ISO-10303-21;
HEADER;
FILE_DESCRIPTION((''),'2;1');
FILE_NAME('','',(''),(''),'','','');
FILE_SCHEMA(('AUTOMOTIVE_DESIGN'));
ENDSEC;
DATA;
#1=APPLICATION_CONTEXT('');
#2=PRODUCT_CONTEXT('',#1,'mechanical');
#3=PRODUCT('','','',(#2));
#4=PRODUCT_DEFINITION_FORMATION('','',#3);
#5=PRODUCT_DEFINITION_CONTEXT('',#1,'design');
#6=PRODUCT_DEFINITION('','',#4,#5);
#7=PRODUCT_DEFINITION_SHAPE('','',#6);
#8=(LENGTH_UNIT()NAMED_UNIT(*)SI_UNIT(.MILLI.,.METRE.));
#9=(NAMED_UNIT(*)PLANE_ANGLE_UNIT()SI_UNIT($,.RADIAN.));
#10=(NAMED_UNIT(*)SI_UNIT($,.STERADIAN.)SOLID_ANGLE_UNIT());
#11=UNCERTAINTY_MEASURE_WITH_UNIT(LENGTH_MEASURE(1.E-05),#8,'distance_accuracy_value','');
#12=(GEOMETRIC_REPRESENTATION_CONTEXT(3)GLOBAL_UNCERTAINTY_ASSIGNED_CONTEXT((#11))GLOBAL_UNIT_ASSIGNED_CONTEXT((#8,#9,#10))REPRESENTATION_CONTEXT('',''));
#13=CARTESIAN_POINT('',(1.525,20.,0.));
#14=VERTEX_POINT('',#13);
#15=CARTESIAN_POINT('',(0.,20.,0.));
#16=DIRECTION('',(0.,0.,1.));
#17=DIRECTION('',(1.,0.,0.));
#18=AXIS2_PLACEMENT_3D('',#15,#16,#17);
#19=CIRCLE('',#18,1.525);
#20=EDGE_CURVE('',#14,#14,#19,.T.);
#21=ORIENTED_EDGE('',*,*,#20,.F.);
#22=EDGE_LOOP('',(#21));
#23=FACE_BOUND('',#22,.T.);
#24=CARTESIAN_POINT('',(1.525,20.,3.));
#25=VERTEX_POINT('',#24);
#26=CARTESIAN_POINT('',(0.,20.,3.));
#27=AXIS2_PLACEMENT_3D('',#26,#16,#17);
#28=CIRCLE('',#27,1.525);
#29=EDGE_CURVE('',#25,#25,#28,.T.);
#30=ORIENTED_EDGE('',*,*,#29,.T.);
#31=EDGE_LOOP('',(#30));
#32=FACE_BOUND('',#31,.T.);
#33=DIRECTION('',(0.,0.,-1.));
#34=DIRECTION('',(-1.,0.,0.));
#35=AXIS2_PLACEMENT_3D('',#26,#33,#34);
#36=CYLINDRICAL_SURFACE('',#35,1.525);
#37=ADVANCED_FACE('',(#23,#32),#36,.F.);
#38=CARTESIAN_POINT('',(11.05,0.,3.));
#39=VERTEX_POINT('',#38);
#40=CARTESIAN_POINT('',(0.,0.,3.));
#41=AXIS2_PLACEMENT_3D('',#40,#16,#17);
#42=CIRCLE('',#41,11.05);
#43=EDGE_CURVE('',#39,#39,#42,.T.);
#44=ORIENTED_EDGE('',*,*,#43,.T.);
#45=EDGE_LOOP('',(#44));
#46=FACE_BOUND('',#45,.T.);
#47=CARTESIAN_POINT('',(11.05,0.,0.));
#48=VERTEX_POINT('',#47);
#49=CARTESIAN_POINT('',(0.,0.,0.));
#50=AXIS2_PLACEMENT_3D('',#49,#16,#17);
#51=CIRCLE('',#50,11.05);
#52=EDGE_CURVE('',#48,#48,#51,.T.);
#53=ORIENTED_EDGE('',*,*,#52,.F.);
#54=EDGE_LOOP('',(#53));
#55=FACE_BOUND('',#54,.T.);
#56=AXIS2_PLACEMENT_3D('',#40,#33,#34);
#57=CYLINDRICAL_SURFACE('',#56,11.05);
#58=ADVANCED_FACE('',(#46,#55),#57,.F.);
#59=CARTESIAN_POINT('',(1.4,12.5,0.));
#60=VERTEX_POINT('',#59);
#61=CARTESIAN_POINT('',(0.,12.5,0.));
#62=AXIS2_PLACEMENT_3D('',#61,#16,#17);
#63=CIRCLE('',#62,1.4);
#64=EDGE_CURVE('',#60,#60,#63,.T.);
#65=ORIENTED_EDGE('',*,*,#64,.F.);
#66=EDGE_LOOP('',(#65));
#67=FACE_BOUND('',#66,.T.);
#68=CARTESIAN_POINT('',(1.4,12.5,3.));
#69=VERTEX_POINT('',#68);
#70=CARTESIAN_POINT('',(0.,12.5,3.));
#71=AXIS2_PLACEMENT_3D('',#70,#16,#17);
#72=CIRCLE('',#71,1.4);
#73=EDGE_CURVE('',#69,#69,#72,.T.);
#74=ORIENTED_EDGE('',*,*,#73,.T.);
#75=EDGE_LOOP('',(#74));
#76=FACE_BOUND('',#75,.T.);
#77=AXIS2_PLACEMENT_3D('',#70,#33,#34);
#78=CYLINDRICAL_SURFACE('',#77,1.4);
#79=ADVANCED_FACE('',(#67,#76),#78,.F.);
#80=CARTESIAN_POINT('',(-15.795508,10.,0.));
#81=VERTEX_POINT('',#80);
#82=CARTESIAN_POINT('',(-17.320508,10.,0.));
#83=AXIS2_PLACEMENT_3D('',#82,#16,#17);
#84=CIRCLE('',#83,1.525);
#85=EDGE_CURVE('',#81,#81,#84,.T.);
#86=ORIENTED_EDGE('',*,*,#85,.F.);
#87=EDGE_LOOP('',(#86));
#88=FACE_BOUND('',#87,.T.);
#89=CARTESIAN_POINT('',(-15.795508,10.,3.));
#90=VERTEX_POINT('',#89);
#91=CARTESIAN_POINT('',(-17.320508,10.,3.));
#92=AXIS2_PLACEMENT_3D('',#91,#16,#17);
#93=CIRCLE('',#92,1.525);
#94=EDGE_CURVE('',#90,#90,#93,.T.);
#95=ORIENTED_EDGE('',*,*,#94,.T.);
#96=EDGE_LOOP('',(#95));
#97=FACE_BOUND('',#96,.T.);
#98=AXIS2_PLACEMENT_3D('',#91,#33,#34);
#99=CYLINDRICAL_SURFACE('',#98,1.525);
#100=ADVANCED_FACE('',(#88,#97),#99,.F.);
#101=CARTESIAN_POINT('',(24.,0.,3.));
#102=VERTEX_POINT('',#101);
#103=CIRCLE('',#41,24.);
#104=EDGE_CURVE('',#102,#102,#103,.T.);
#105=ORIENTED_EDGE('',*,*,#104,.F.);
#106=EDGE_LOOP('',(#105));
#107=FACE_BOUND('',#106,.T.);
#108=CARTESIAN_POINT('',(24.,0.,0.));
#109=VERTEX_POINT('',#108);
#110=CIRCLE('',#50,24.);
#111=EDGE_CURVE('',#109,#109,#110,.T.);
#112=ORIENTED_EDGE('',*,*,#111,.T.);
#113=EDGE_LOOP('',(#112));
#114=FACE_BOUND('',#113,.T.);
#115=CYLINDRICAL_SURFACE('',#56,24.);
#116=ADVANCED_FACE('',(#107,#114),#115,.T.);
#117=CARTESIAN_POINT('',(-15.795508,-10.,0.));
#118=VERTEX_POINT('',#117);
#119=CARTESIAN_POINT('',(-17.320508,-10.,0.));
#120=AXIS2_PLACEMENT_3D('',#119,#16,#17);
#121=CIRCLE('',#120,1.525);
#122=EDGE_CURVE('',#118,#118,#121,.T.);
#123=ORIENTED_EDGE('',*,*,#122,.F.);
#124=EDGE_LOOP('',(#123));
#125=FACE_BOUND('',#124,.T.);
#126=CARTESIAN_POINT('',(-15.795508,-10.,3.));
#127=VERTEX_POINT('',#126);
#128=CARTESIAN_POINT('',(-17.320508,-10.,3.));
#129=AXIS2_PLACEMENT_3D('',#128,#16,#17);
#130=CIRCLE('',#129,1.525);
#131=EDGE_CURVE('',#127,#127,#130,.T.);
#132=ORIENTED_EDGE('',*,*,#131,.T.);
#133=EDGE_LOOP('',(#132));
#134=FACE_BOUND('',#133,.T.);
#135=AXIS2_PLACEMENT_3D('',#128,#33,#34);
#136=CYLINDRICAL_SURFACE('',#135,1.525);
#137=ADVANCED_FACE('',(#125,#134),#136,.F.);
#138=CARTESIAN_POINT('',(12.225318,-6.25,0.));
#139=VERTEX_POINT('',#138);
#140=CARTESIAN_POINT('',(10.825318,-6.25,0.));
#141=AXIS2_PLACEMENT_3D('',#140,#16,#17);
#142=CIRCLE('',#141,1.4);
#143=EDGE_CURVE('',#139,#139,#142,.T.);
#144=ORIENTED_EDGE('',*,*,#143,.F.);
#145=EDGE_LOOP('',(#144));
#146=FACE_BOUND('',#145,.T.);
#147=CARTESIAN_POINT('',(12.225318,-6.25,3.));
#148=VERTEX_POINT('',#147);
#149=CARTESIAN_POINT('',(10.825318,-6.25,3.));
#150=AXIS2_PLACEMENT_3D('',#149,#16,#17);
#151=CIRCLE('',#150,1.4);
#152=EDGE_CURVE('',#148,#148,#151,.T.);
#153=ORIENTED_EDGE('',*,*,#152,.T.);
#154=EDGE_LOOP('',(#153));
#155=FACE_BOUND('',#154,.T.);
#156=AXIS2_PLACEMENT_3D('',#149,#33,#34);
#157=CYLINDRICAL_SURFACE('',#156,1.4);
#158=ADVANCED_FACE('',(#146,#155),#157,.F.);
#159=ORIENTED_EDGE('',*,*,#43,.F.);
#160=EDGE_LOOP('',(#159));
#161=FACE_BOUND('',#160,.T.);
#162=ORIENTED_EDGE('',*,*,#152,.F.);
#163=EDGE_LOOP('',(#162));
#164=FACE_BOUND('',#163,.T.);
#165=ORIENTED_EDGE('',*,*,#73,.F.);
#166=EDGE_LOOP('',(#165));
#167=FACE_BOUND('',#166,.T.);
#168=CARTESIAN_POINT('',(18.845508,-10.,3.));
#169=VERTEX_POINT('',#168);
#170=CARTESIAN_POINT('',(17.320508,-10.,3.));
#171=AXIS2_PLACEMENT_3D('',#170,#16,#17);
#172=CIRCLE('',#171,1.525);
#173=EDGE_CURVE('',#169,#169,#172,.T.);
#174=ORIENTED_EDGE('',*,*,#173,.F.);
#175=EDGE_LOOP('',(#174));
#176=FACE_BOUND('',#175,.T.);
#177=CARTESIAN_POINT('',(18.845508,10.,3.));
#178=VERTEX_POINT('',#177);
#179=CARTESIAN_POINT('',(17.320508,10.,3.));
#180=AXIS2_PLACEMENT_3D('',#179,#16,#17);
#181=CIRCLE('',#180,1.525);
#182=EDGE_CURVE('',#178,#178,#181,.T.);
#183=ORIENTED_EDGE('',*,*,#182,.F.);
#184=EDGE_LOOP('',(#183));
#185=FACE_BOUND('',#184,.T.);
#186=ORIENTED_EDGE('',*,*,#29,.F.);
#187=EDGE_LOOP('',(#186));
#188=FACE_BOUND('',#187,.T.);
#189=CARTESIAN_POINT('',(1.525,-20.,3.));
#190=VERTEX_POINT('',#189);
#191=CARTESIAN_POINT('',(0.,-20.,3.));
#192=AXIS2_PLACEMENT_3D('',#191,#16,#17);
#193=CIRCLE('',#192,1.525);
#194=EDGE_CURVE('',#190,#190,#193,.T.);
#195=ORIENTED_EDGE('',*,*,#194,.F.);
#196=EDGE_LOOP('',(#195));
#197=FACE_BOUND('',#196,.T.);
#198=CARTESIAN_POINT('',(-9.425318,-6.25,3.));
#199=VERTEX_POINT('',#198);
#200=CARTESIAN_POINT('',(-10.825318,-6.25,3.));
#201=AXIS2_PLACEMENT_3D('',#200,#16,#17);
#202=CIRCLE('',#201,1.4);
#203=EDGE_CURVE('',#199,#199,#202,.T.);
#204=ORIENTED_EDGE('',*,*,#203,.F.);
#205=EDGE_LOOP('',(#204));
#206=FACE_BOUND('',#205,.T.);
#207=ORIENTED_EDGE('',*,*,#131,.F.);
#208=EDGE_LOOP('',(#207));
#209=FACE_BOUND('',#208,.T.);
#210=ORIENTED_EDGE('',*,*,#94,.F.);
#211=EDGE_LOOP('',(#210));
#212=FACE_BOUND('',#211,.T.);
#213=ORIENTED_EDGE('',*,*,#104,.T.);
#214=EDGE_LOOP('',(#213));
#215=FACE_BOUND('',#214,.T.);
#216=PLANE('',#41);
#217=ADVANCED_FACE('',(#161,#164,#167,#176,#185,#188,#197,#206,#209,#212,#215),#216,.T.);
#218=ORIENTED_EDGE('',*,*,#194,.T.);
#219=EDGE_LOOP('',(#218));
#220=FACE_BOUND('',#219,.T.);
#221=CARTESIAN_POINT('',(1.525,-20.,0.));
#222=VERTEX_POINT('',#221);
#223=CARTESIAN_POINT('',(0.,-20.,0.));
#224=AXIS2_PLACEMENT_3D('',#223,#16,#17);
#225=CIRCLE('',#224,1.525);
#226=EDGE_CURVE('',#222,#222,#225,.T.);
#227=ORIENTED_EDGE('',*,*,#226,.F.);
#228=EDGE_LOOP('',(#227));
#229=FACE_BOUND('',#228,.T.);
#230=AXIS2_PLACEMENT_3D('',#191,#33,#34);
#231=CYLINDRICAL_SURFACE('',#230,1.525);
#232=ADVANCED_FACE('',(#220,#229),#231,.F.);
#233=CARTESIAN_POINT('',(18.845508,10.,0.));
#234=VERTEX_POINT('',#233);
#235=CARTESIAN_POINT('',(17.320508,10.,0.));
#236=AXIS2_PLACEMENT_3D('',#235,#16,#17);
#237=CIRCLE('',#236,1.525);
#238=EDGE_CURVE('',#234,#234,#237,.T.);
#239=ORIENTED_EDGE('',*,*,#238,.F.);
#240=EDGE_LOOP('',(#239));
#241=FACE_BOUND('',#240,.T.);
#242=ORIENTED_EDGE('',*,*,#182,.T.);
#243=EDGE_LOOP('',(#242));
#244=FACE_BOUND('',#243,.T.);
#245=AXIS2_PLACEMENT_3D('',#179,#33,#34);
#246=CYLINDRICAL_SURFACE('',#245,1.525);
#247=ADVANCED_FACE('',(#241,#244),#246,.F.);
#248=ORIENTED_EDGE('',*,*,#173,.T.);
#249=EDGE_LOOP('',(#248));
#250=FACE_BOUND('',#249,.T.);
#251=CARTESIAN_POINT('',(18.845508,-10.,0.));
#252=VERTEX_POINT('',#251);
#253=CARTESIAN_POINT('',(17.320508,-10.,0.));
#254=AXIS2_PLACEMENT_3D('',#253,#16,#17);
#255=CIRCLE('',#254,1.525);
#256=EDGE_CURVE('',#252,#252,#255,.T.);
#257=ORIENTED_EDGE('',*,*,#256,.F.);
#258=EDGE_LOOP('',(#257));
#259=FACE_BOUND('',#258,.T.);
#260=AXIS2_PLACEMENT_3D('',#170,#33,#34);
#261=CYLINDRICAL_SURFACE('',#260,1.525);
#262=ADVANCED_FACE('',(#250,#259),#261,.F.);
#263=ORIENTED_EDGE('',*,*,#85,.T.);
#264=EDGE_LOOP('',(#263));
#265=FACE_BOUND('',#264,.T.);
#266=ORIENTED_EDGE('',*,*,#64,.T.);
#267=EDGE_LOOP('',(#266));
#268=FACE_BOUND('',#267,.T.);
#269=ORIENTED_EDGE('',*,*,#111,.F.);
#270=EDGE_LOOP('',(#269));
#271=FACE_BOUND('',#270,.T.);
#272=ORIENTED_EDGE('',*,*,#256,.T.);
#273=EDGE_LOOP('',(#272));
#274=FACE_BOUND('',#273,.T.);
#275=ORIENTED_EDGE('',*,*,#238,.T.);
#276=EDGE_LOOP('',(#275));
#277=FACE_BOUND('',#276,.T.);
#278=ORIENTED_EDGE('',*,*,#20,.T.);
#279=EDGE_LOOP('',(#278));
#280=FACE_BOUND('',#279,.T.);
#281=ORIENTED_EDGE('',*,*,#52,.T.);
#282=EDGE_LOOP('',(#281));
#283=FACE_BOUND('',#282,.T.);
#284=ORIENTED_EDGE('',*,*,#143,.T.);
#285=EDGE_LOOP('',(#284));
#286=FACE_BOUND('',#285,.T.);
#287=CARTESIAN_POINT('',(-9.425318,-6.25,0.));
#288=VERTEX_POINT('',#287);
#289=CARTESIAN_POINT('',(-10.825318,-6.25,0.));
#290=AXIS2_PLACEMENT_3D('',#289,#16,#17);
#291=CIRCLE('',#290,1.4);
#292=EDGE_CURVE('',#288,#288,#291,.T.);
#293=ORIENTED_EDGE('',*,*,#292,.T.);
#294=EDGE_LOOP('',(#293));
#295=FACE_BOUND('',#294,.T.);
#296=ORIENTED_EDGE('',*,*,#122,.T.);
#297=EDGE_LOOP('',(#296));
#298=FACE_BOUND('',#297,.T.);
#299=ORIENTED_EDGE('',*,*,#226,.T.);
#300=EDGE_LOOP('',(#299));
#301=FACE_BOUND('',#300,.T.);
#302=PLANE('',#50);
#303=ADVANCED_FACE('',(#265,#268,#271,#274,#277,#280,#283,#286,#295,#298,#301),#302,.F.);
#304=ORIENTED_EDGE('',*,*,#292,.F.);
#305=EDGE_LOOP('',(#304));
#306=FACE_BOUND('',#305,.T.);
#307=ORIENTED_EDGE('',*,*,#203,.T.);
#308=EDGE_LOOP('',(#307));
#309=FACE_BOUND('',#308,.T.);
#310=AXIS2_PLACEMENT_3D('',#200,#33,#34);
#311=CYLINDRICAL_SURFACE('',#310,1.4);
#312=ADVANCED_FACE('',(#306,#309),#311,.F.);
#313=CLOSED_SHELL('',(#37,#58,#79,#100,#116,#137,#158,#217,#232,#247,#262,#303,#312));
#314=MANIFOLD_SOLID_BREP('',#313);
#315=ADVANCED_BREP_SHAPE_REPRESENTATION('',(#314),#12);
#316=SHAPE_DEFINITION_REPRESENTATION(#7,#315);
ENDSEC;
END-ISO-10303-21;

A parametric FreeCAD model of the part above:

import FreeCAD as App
import Part
import Sketcher
Q = App.Units.Quantity

doc = App.newDocument("Part")
body = doc.addObject("PartDesign::Body", "Body")

# Sketch on XY plane
sketch1 = doc.addObject("Sketcher::SketchObject", "Sketch")
body.addObject(sketch1)
sketch1.AttachmentSupport = (doc.XY_Plane, [""])
sketch1.MapMode = "FlatFace"
sketch1.addGeometry(Part.Circle(App.Vector(0, 0, 0), App.Vector(0, 0, 1), 24), False)
sketch1.addGeometry(Part.Circle(App.Vector(-17.3, -10, 0), App.Vector(0, 0, 1), 1.5), False)
sketch1.addGeometry(Part.Circle(App.Vector(-10.8, -6.2, 0), App.Vector(0, 0, 1), 1.4), False)
sketch1.addGeometry(Part.Circle(App.Vector(0, -20, 0), App.Vector(0, 0, 1), 1.5), False)
sketch1.addGeometry(Part.Circle(App.Vector(0, 0, 0), App.Vector(0, 0, 1), 11.1), False)
sketch1.addGeometry(Part.Circle(App.Vector(10.8, -6.2, 0), App.Vector(0, 0, 1), 1.4), False)
sketch1.addGeometry(Part.Circle(App.Vector(17.3, -10, 0), App.Vector(0, 0, 1), 1.5), False)
sketch1.addGeometry(Part.Circle(App.Vector(-17.3, 10, 0), App.Vector(0, 0, 1), 1.5), False)
sketch1.addGeometry(Part.Circle(App.Vector(17.3, 10, 0), App.Vector(0, 0, 1), 1.5), False)
sketch1.addGeometry(Part.Circle(App.Vector(0, 12.5, 0), App.Vector(0, 0, 1), 1.4), False)
sketch1.addGeometry(Part.Circle(App.Vector(0, 20, 0), App.Vector(0, 0, 1), 1.5), False)
sketch1.addConstraint(Sketcher.Constraint("Coincident", 0, 3, -1, 1))
sketch1.addConstraint(Sketcher.Constraint("Coincident", 4, 3, -1, 1))
sketch1.addConstraint(Sketcher.Constraint("Equal", 1, 3))
sketch1.addConstraint(Sketcher.Constraint("Equal", 2, 5))
sketch1.addConstraint(Sketcher.Constraint("Equal", 3, 6))
sketch1.addConstraint(Sketcher.Constraint("Equal", 6, 7))
sketch1.addConstraint(Sketcher.Constraint("Equal", 7, 8))
sketch1.addConstraint(Sketcher.Constraint("Equal", 5, 9))
sketch1.addConstraint(Sketcher.Constraint("Equal", 8, 10))
sketch1.addConstraint(Sketcher.Constraint("Symmetric", 6, 3, 7, 3, -1, 1))
sketch1.addConstraint(Sketcher.Constraint("Symmetric", 1, 3, 8, 3, -1, 1))
sketch1.addConstraint(Sketcher.Constraint("Symmetric", 3, 3, 10, 3, -1, 1))
sketch1.addConstraint(Sketcher.Constraint("Symmetric", 2, 3, 5, 3, -2))
sketch1.addConstraint(Sketcher.Constraint("Symmetric", 1, 3, 6, 3, -2))
sketch1.addConstraint(Sketcher.Constraint("PointOnObject", 3, 3, -2))
sketch1.addConstraint(Sketcher.Constraint("PointOnObject", 9, 3, -2))
sketch1.addConstraint(Sketcher.Constraint("Diameter", 0, Q("48 mm")))
sketch1.addConstraint(Sketcher.Constraint("Diameter", 2, Q("2.8 mm")))
sketch1.addConstraint(Sketcher.Constraint("Diameter", 4, Q("22.1 mm")))
sketch1.addConstraint(Sketcher.Constraint("Diameter", 1, Q("3.05 mm")))
sketch1.addConstraint(Sketcher.Constraint("DistanceY", 1, 3, -1, 1, Q("10 mm")))
sketch1.addConstraint(Sketcher.Constraint("DistanceY", 3, 3, -1, 1, Q("20 mm")))
sketch1.addConstraint(Sketcher.Constraint("DistanceY", -1, 1, 9, 3, Q("12.5 mm")))
sketch1.addConstraint(Sketcher.Constraint("DistanceY", 2, 3, -1, 1, Q("6.25 mm")))
sketch1.addConstraint(Sketcher.Constraint("DistanceX", 1, 3, -1, 1, Q("17.320508 mm")))
sketch1.addConstraint(Sketcher.Constraint("DistanceX", 1, 3, 2, 3, Q("6.495191 mm")))
pad1 = doc.addObject("PartDesign::Pad", "Pad")
body.addObject(pad1)
pad1.Profile = sketch1
pad1.Length = 3

doc.recompute()
